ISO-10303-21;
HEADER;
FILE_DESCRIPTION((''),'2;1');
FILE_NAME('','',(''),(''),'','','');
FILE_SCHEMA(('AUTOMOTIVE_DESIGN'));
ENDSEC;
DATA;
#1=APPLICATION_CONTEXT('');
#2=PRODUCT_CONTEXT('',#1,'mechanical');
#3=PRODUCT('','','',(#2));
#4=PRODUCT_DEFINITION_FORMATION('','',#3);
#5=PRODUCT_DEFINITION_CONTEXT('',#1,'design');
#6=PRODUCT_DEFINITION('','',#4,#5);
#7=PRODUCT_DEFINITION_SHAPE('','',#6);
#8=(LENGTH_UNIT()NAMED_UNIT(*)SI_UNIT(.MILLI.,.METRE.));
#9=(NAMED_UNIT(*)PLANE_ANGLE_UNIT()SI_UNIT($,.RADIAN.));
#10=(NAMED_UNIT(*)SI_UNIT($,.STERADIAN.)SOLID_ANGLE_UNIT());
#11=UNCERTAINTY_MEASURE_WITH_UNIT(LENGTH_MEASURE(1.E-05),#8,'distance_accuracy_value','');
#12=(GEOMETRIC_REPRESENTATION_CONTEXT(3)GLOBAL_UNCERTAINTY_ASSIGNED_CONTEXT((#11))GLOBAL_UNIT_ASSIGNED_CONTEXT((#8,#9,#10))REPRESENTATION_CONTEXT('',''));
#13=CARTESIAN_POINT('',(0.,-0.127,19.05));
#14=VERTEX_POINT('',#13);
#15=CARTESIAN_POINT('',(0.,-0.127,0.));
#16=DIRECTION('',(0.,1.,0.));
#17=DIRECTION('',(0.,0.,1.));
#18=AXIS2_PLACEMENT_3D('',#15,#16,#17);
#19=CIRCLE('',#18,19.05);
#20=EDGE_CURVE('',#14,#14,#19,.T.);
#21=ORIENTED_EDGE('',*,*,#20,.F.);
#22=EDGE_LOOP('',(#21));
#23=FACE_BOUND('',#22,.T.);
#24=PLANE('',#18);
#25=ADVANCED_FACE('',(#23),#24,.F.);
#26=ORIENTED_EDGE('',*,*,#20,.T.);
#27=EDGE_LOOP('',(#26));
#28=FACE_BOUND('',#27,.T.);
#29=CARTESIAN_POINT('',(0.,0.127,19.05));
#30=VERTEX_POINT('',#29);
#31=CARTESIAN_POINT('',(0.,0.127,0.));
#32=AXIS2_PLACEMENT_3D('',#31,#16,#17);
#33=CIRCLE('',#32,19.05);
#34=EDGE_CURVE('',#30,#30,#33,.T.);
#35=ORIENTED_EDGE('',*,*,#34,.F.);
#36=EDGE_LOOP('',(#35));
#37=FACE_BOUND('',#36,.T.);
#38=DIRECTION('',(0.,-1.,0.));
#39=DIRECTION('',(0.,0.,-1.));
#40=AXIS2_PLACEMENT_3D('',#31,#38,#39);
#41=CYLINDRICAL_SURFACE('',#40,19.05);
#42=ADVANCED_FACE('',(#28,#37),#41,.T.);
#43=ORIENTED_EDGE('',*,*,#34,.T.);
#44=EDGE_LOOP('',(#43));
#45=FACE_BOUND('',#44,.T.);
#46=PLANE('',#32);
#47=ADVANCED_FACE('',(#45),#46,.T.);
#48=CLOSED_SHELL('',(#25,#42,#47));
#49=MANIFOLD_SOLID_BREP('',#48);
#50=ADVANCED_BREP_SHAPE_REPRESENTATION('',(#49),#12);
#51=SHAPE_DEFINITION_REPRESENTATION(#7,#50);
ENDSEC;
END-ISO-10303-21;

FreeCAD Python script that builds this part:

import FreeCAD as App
import Part
import Sketcher
Q = App.Units.Quantity

doc = App.newDocument("Part")
params = doc.addObject("Spreadsheet::Sheet", "Params")
for row, (alias, value) in enumerate([
    ("sketch1_diameter", "1.5 in"),
    ("pad1_length", "0.01 in"),
], start=1):
    params.set(f"A{row}", alias)
    params.set(f"B{row}", "=" + value)
    params.setAlias(f"B{row}", alias)

body = doc.addObject("PartDesign::Body", "Body")

# Sketch on XZ plane
sketch1 = body.newObject("Sketcher::SketchObject", "Sketch")
sketch1.AttachmentSupport = (doc.getObject("XZ_Plane"), [""])
sketch1.MapMode = "FlatFace"
sketch1.addGeometry(Part.Circle(App.Vector(0, 0, 0), App.Vector(0, 0, 1), 19), False)
sketch1.addConstraint([
    Sketcher.Constraint("Coincident", 0, 3, -1, 1),
    Sketcher.Constraint("Diameter", 0, Q("1.5 in")),
])
sketch1.setExpression("Constraints[1]", "Params.sketch1_diameter")
pad1 = body.newObject("PartDesign::Pad", "Pad")
pad1.Profile = sketch1
pad1.setExpression("Length", "Params.pad1_length")
pad1.Midplane = True

doc.recompute()
